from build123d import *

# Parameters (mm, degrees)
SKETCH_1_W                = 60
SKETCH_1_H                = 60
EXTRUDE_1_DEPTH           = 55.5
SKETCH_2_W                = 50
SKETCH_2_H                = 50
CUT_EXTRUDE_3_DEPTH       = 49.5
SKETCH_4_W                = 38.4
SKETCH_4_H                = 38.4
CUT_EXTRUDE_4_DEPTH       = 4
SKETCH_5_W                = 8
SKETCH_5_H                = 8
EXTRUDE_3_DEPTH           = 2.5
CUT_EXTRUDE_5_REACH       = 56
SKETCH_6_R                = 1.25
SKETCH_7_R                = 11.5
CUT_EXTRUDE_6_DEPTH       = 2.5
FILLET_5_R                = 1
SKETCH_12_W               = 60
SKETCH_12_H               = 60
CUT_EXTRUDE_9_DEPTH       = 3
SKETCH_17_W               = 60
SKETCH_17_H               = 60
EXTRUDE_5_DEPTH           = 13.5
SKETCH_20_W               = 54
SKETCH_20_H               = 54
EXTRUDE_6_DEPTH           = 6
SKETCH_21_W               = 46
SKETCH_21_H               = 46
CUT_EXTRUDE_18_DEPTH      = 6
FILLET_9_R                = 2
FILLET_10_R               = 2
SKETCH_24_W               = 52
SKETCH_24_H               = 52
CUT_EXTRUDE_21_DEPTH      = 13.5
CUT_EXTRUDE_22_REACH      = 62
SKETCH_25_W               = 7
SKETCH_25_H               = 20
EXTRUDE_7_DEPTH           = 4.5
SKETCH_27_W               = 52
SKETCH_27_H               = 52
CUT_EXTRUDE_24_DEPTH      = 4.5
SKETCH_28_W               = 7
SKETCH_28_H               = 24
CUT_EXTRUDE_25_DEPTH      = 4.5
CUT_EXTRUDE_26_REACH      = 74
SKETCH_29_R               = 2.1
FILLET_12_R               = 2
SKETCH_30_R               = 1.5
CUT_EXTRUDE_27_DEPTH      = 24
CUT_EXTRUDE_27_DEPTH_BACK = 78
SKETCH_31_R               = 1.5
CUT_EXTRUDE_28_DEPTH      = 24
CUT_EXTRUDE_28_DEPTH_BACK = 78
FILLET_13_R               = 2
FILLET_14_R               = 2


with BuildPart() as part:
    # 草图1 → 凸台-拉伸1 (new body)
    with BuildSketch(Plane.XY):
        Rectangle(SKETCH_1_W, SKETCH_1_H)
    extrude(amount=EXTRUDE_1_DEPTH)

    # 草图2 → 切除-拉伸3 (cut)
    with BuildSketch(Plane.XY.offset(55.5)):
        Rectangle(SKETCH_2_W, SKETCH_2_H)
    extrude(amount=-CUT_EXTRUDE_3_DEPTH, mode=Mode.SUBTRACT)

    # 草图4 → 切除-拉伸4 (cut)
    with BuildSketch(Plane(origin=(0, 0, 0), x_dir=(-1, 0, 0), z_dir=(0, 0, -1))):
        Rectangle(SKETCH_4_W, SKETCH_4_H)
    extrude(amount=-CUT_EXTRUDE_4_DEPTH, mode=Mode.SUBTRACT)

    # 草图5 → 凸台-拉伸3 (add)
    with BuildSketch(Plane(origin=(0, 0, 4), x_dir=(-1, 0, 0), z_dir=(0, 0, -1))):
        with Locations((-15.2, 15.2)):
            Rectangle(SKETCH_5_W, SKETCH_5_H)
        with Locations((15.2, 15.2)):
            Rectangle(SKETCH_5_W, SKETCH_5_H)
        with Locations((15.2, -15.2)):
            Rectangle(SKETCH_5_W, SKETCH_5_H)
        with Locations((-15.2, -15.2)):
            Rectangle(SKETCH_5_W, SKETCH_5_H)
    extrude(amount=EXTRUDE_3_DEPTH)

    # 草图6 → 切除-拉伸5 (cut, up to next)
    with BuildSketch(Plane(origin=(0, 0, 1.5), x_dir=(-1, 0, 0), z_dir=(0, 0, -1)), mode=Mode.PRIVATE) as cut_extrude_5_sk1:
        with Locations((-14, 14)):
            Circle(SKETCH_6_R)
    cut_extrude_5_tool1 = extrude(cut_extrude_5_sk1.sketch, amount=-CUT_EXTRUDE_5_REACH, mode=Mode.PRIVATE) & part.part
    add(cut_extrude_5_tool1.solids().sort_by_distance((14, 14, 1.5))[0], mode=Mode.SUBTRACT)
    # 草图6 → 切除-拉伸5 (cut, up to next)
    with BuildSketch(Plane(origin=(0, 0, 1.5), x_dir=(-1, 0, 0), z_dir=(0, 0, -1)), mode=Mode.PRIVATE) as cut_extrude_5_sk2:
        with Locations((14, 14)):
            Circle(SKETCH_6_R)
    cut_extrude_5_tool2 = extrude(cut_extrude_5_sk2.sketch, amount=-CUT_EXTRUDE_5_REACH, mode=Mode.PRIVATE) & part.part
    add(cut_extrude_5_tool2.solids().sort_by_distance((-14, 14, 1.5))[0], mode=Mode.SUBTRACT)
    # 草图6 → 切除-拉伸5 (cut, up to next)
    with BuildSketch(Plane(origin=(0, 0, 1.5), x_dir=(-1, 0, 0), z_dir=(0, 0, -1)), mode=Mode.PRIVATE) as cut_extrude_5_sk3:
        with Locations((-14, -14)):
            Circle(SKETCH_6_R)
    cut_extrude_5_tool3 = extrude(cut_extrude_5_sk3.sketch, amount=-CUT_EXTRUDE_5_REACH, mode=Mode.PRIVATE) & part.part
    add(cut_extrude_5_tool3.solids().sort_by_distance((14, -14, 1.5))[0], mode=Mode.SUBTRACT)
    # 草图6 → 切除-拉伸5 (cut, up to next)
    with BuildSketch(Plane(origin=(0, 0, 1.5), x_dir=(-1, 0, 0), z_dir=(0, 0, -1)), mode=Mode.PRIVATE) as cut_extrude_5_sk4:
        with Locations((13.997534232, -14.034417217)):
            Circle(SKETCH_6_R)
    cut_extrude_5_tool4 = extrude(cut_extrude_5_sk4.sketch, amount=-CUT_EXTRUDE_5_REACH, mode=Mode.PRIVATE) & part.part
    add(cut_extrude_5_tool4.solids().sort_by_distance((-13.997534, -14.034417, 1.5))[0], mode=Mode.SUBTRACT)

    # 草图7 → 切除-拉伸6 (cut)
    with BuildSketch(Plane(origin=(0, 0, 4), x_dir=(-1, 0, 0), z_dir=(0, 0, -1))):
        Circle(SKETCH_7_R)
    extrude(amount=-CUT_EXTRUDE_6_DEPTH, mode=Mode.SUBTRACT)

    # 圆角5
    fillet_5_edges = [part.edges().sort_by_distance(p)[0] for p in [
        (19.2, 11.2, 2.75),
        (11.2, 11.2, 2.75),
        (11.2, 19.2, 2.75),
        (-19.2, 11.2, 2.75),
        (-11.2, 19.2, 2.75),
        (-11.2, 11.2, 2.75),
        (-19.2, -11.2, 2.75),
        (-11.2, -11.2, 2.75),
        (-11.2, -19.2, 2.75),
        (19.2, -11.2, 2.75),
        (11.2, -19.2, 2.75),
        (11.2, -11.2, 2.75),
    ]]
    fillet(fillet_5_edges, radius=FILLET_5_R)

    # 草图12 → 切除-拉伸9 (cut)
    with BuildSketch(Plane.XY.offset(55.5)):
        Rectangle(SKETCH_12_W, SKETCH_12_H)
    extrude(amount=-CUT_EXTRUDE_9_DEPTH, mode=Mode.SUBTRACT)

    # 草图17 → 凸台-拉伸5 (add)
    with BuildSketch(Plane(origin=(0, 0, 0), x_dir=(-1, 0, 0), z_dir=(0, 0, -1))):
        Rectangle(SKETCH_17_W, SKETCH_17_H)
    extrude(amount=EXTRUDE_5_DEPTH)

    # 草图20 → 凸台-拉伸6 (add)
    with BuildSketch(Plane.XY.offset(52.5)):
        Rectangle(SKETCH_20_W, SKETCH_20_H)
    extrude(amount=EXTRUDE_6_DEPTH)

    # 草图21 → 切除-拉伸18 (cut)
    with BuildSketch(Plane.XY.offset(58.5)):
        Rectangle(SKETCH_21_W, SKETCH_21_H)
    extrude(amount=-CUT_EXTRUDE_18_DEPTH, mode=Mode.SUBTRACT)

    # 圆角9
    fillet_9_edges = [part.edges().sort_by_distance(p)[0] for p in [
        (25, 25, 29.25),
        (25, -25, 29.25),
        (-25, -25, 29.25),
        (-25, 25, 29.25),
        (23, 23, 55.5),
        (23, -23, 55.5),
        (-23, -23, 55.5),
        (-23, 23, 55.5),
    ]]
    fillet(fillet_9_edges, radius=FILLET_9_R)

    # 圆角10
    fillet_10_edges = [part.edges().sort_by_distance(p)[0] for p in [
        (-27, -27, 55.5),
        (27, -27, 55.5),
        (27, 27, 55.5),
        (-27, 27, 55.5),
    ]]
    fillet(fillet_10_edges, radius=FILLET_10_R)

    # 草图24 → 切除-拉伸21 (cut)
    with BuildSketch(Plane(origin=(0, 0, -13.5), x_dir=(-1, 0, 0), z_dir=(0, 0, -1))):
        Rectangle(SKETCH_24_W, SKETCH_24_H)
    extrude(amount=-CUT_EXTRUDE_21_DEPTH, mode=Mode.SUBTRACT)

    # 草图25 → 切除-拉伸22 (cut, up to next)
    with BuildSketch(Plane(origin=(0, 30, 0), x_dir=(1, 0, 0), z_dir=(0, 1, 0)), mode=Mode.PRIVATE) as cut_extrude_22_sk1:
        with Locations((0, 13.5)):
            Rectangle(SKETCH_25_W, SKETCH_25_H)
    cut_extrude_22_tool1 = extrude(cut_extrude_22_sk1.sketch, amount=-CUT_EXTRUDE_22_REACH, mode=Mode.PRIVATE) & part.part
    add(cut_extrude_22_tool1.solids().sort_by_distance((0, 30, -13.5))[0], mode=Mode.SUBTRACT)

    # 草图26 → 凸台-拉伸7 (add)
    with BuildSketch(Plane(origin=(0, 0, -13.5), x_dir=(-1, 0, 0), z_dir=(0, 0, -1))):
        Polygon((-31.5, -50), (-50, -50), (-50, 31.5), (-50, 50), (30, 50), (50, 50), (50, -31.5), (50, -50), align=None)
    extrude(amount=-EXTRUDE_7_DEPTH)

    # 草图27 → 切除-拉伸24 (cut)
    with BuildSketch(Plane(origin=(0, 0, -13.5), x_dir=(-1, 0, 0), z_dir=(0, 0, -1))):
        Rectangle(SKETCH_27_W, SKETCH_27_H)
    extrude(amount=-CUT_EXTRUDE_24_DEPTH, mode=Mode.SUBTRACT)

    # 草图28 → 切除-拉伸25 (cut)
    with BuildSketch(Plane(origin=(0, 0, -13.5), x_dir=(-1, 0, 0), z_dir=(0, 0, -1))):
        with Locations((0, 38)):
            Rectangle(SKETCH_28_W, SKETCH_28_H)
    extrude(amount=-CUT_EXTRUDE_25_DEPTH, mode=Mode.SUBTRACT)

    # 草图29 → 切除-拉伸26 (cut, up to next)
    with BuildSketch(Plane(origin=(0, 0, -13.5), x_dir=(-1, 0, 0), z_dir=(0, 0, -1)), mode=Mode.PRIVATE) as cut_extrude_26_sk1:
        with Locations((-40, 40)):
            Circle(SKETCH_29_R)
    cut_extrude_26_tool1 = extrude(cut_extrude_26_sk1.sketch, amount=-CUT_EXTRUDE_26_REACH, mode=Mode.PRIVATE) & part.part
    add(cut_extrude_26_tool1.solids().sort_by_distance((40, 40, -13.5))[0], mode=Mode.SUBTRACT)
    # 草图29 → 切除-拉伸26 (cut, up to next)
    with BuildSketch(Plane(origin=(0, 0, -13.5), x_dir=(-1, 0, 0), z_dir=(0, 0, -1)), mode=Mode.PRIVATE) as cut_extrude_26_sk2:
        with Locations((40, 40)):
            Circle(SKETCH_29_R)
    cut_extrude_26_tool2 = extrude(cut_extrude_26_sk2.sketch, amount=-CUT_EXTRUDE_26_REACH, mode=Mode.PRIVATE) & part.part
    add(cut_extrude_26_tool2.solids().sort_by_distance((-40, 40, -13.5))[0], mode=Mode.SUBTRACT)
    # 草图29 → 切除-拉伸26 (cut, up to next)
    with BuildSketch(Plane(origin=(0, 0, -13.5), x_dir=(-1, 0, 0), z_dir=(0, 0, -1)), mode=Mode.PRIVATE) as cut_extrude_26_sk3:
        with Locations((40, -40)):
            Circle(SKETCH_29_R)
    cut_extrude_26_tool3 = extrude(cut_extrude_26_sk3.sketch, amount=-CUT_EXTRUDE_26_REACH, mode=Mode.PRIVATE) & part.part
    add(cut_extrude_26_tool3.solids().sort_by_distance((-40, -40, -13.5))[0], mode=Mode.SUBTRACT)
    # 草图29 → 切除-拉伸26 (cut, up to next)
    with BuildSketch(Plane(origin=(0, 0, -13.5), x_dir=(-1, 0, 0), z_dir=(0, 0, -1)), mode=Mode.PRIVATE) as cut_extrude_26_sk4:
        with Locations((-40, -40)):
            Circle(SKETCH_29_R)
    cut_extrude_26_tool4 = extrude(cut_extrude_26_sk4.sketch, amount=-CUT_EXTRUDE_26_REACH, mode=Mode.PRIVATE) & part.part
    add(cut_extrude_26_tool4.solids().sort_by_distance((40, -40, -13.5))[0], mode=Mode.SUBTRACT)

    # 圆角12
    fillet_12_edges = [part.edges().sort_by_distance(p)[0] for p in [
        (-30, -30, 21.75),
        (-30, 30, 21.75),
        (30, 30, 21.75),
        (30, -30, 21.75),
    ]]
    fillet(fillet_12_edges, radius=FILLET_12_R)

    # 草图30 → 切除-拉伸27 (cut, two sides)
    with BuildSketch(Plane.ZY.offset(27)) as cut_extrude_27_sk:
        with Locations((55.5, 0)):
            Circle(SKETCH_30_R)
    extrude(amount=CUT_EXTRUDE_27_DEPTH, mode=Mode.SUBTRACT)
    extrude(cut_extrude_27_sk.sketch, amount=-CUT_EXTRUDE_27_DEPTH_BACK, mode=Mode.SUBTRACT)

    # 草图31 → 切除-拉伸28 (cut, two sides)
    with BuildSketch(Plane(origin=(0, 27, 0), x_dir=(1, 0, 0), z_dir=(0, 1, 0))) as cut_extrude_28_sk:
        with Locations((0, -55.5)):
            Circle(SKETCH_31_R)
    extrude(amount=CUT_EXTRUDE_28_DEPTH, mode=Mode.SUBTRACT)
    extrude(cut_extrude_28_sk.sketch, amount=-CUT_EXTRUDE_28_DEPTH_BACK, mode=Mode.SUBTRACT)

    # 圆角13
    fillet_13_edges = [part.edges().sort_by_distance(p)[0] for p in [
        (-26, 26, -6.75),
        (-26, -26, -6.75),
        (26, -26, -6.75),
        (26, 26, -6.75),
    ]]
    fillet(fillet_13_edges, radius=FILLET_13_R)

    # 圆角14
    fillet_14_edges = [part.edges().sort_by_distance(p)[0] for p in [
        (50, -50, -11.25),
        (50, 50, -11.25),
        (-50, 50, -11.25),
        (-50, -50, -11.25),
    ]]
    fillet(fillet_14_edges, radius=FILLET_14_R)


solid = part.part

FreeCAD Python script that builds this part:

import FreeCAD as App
import Part
import Sketcher
from FreeCAD import Vector
Q = App.Units.Quantity


def edges_at(feature, points):
    """Names of the edges that pass closest to the given points."""
    edges = feature.Shape.Edges
    near = lambda p: min(range(len(edges)), key=lambda i: edges[i].distToShape(Part.Vertex(*p))[0])
    return sorted({f"Edge{near(p) + 1}" for p in points})

doc = App.newDocument("Part")
body = doc.addObject("PartDesign::Body", "Body")

# Sketch on XY plane
sketch1 = body.newObject("Sketcher::SketchObject", "Sketch")
sketch1.AttachmentSupport = (doc.getObject("XY_Plane"), [""])
sketch1.MapMode = "FlatFace"
sketch1.addGeometry([
    Part.LineSegment(Vector(-30, 30, 0), Vector(-30, -30, 0)),
    Part.LineSegment(Vector(-30, -30, 0), Vector(30, -30, 0)),
    Part.LineSegment(Vector(30, -30, 0), Vector(30, 30, 0)),
    Part.LineSegment(Vector(30, 30, 0), Vector(-30, 30, 0)),
], False)
sketch1.addConstraint([
    Sketcher.Constraint("Coincident", 0, 2, 1, 1),
    Sketcher.Constraint("Coincident", 1, 2, 2, 1),
    Sketcher.Constraint("Coincident", 2, 2, 3, 1),
    Sketcher.Constraint("Coincident", 3, 2, 0, 1),
    Sketcher.Constraint("Vertical", 0),
    Sketcher.Constraint("Horizontal", 1),
    Sketcher.Constraint("Vertical", 2),
    Sketcher.Constraint("Horizontal", 3),
    Sketcher.Constraint("Symmetric", 0, 2, 2, 2, -1, 1),
    Sketcher.Constraint("Equal", 3, 0),
    Sketcher.Constraint("DistanceX", 1, 1, 1, 2, Q("60 mm")),
])
pad1 = body.newObject("PartDesign::Pad", "Pad")
pad1.Profile = sketch1
pad1.Length = 55.5

# Sketch on XY plane
sketch2 = body.newObject("Sketcher::SketchObject", "Sketch001")
sketch2.AttachmentSupport = (doc.getObject("XY_Plane"), [""])
sketch2.MapMode = "FlatFace"
sketch2.AttachmentOffset = App.Placement(Vector(0, 0, 55.5), App.Rotation())
sketch2.addGeometry([
    Part.LineSegment(Vector(-25, 25, 0), Vector(-25, -25, 0)),
    Part.LineSegment(Vector(-25, -25, 0), Vector(25, -25, 0)),
    Part.LineSegment(Vector(25, -25, 0), Vector(25, 25, 0)),
    Part.LineSegment(Vector(25, 25, 0), Vector(-25, 25, 0)),
], False)
sketch2.addConstraint([
    Sketcher.Constraint("Coincident", 0, 2, 1, 1),
    Sketcher.Constraint("Coincident", 1, 2, 2, 1),
    Sketcher.Constraint("Coincident", 2, 2, 3, 1),
    Sketcher.Constraint("Coincident", 3, 2, 0, 1),
    Sketcher.Constraint("Vertical", 0),
    Sketcher.Constraint("Horizontal", 1),
    Sketcher.Constraint("Vertical", 2),
    Sketcher.Constraint("Horizontal", 3),
    Sketcher.Constraint("Symmetric", 0, 2, 2, 2, -1, 1),
    Sketcher.Constraint("Equal", 3, 0),
    Sketcher.Constraint("DistanceX", 1, 1, 1, 2, Q("50 mm")),
])
pocket1 = body.newObject("PartDesign::Pocket", "Pocket")
pocket1.Profile = sketch2
pocket1.Length = 49.5

# Sketch on XY plane
sketch3 = body.newObject("Sketcher::SketchObject", "Sketch002")
sketch3.AttachmentSupport = (doc.getObject("XY_Plane"), [""])
sketch3.MapMode = "FlatFace"
sketch3.addGeometry([
    Part.LineSegment(Vector(19, 19, 0), Vector(19, -19, 0)),
    Part.LineSegment(Vector(19, -19, 0), Vector(-19, -19, 0)),
    Part.LineSegment(Vector(-19, -19, 0), Vector(-19, 19, 0)),
    Part.LineSegment(Vector(-19, 19, 0), Vector(19, 19, 0)),
], False)
sketch3.addConstraint([
    Sketcher.Constraint("Coincident", 0, 2, 1, 1),
    Sketcher.Constraint("Coincident", 1, 2, 2, 1),
    Sketcher.Constraint("Coincident", 2, 2, 3, 1),
    Sketcher.Constraint("Coincident", 3, 2, 0, 1),
    Sketcher.Constraint("Vertical", 0),
    Sketcher.Constraint("Horizontal", 1),
    Sketcher.Constraint("Vertical", 2),
    Sketcher.Constraint("Horizontal", 3),
    Sketcher.Constraint("Symmetric", 0, 2, 2, 2, -1, 1),
    Sketcher.Constraint("Equal", 3, 0),
    Sketcher.Constraint("DistanceX", 1, 2, 1, 1, Q("38.4 mm")),
])
pocket2 = body.newObject("PartDesign::Pocket", "Pocket001")
pocket2.Profile = sketch3
pocket2.Length = 4
pocket2.Reversed = True

# Sketch on XY plane
sketch4 = body.newObject("Sketcher::SketchObject", "Sketch003")
sketch4.AttachmentSupport = (doc.getObject("XY_Plane"), [""])
sketch4.MapMode = "FlatFace"
sketch4.AttachmentOffset = App.Placement(Vector(0, 0, 4), App.Rotation())
sketch4.addGeometry([
    Part.LineSegment(Vector(19, 19, 0), Vector(19, 11, 0)),  # 0
    Part.LineSegment(Vector(19, 11, 0), Vector(11, 11, 0)),  # 1
    Part.LineSegment(Vector(11, 11, 0), Vector(11, 19, 0)),  # 2
    Part.LineSegment(Vector(11, 19, 0), Vector(19, 19, 0)),  # 3
    Part.LineSegment(Vector(-11, 19, 0), Vector(-11, 11, 0)),  # 4
    Part.LineSegment(Vector(-11, 11, 0), Vector(-19, 11, 0)),  # 5
    Part.LineSegment(Vector(-19, 11, 0), Vector(-19, 19, 0)),  # 6
    Part.LineSegment(Vector(-19, 19, 0), Vector(-11, 19, 0)),  # 7
    Part.LineSegment(Vector(-11, -11, 0), Vector(-11, -19, 0)),  # 8
    Part.LineSegment(Vector(-11, -19, 0), Vector(-19, -19, 0)),  # 9
    Part.LineSegment(Vector(-19, -19, 0), Vector(-19, -11, 0)),  # 10
    Part.LineSegment(Vector(-19, -11, 0), Vector(-11, -11, 0)),  # 11
    Part.LineSegment(Vector(19, -11, 0), Vector(19, -19, 0)),  # 12
    Part.LineSegment(Vector(19, -19, 0), Vector(11, -19, 0)),  # 13
    Part.LineSegment(Vector(11, -19, 0), Vector(11, -11, 0)),  # 14
    Part.LineSegment(Vector(11, -11, 0), Vector(19, -11, 0)),  # 15
], False)
sketch4.addConstraint([
    Sketcher.Constraint("Coincident", 0, 2, 1, 1),
    Sketcher.Constraint("Coincident", 1, 2, 2, 1),
    Sketcher.Constraint("Coincident", 2, 2, 3, 1),
    Sketcher.Constraint("Coincident", 3, 2, 0, 1),
    Sketcher.Constraint("Coincident", 4, 2, 5, 1),
    Sketcher.Constraint("Coincident", 5, 2, 6, 1),
    Sketcher.Constraint("Coincident", 6, 2, 7, 1),
    Sketcher.Constraint("Coincident", 7, 2, 4, 1),
    Sketcher.Constraint("Coincident", 8, 2, 9, 1),
    Sketcher.Constraint("Coincident", 9, 2, 10, 1),
    Sketcher.Constraint("Coincident", 10, 2, 11, 1),
    Sketcher.Constraint("Coincident", 11, 2, 8, 1),
    Sketcher.Constraint("Coincident", 12, 2, 13, 1),
    Sketcher.Constraint("Coincident", 13, 2, 14, 1),
    Sketcher.Constraint("Coincident", 14, 2, 15, 1),
    Sketcher.Constraint("Coincident", 15, 2, 12, 1),
    Sketcher.Constraint("Vertical", 0),
    Sketcher.Constraint("Horizontal", 1),
    Sketcher.Constraint("Vertical", 2),
    Sketcher.Constraint("Horizontal", 3),
    Sketcher.Constraint("Vertical", 4),
    Sketcher.Constraint("Horizontal", 5),
    Sketcher.Constraint("Vertical", 6),
    Sketcher.Constraint("Horizontal", 7),
    Sketcher.Constraint("Vertical", 8),
    Sketcher.Constraint("Horizontal", 9),
    Sketcher.Constraint("Vertical", 10),
    Sketcher.Constraint("Horizontal", 11),
    Sketcher.Constraint("Vertical", 12),
    Sketcher.Constraint("Horizontal", 13),
    Sketcher.Constraint("Vertical", 14),
    Sketcher.Constraint("Horizontal", 15),
    Sketcher.Constraint("Symmetric", 2, 2, 8, 2, -1, 1),
    Sketcher.Constraint("Symmetric", 0, 2, 10, 2, -1, 1),
    Sketcher.Constraint("Symmetric", 6, 2, 12, 2, -1, 1),
    Sketcher.Constraint("Symmetric", 4, 2, 14, 2, -1, 1),
    Sketcher.Constraint("Symmetric", 1, 2, 4, 2, -2),
    Sketcher.Constraint("Symmetric", 3, 2, 6, 2, -2),
    Sketcher.Constraint("Equal", 15, 0),
    Sketcher.Constraint("DistanceX", 1, 2, 1, 1, Q("8 mm")),
    Sketcher.Constraint("DistanceX", -1, 1, 0, 2, Q("19.2 mm")),
    Sketcher.Constraint("DistanceY", -1, 1, 0, 2, Q("11.2 mm")),
])
pad2 = body.newObject("PartDesign::Pad", "Pad001")
pad2.Profile = sketch4
pad2.Length = 2.5
pad2.Reversed = True

# Sketch on XY plane
sketch5 = body.newObject("Sketcher::SketchObject", "Sketch004")
sketch5.AttachmentSupport = (doc.getObject("XY_Plane"), [""])
sketch5.MapMode = "FlatFace"
sketch5.AttachmentOffset = App.Placement(Vector(0, 0, 1.5), App.Rotation())
sketch5.addGeometry(Part.Circle(Vector(14, 14, 0), Vector(0, 0, 1), 1.2), False)
sketch5.addConstraint([
    Sketcher.Constraint("Diameter", 0, Q("2.5 mm")),
    Sketcher.Constraint("DistanceX", -1, 1, 0, 3, Q("14 mm")),
    Sketcher.Constraint("DistanceY", -1, 1, 0, 3, Q("14 mm")),
])
pocket3 = body.newObject("PartDesign::Pocket", "Pocket002")
pocket3.Profile = sketch5
pocket3.Type = "UpToFirst"
pocket3.Reversed = True

# Sketch on XY plane
sketch6 = body.newObject("Sketcher::SketchObject", "Sketch005")
sketch6.AttachmentSupport = (doc.getObject("XY_Plane"), [""])
sketch6.MapMode = "FlatFace"
sketch6.AttachmentOffset = App.Placement(Vector(0, 0, 1.5), App.Rotation())
sketch6.addGeometry(Part.Circle(Vector(-14, 14, 0), Vector(0, 0, 1), 1.2), False)
sketch6.addConstraint([
    Sketcher.Constraint("Diameter", 0, Q("2.5 mm")),
    Sketcher.Constraint("DistanceX", 0, 3, -1, 1, Q("14 mm")),
    Sketcher.Constraint("DistanceY", -1, 1, 0, 3, Q("14 mm")),
])
pocket4 = body.newObject("PartDesign::Pocket", "Pocket003")
pocket4.Profile = sketch6
pocket4.Type = "UpToFirst"
pocket4.Reversed = True

# Sketch on XY plane
sketch7 = body.newObject("Sketcher::SketchObject", "Sketch006")
sketch7.AttachmentSupport = (doc.getObject("XY_Plane"), [""])
sketch7.MapMode = "FlatFace"
sketch7.AttachmentOffset = App.Placement(Vector(0, 0, 1.5), App.Rotation())
sketch7.addGeometry(Part.Circle(Vector(14, -14, 0), Vector(0, 0, 1), 1.2), False)
sketch7.addConstraint([
    Sketcher.Constraint("Diameter", 0, Q("2.5 mm")),
    Sketcher.Constraint("DistanceX", -1, 1, 0, 3, Q("14 mm")),
    Sketcher.Constraint("DistanceY", 0, 3, -1, 1, Q("14 mm")),
])
pocket5 = body.newObject("PartDesign::Pocket", "Pocket004")
pocket5.Profile = sketch7
pocket5.Type = "UpToFirst"
pocket5.Reversed = True

# Sketch on XY plane
sketch8 = body.newObject("Sketcher::SketchObject", "Sketch007")
sketch8.AttachmentSupport = (doc.getObject("XY_Plane"), [""])
sketch8.MapMode = "FlatFace"
sketch8.AttachmentOffset = App.Placement(Vector(0, 0, 1.5), App.Rotation())
sketch8.addGeometry(Part.Circle(Vector(-14, -14, 0), Vector(0, 0, 1), 1.2), False)
sketch8.addConstraint([
    Sketcher.Constraint("Diameter", 0, Q("2.5 mm")),
    Sketcher.Constraint("DistanceX", 0, 3, -1, 1, Q("13.997534 mm")),
    Sketcher.Constraint("DistanceY", 0, 3, -1, 1, Q("14.034417 mm")),
])
pocket6 = body.newObject("PartDesign::Pocket", "Pocket005")
pocket6.Profile = sketch8
pocket6.Type = "UpToFirst"
pocket6.Reversed = True

# Sketch on XY plane
sketch9 = body.newObject("Sketcher::SketchObject", "Sketch008")
sketch9.AttachmentSupport = (doc.getObject("XY_Plane"), [""])
sketch9.MapMode = "FlatFace"
sketch9.AttachmentOffset = App.Placement(Vector(0, 0, 4), App.Rotation())
sketch9.addGeometry(Part.Circle(Vector(0, 0, 0), Vector(0, 0, 1), 12), False)
sketch9.addConstraint([
    Sketcher.Constraint("Coincident", 0, 3, -1, 1),
    Sketcher.Constraint("Diameter", 0, Q("23 mm")),
])
pocket7 = body.newObject("PartDesign::Pocket", "Pocket006")
pocket7.Profile = sketch9
pocket7.Length = 2.5
pocket7.Reversed = True
doc.recompute()

fillet = body.newObject("PartDesign::Fillet", "Fillet")
fillet.Base = (pocket7, edges_at(pocket7, [
    (19.2, 11.2, 2.75),
    (11.2, 11.2, 2.75),
    (11.2, 19.2, 2.75),
    (-19.2, 11.2, 2.75),
    (-11.2, 19.2, 2.75),
    (-11.2, 11.2, 2.75),
    (-19.2, -11.2, 2.75),
    (-11.2, -11.2, 2.75),
    (-11.2, -19.2, 2.75),
    (19.2, -11.2, 2.75),
    (11.2, -19.2, 2.75),
    (11.2, -11.2, 2.75),
]))
fillet.Radius = 1

# Sketch on XY plane
sketch10 = body.newObject("Sketcher::SketchObject", "Sketch009")
sketch10.AttachmentSupport = (doc.getObject("XY_Plane"), [""])
sketch10.MapMode = "FlatFace"
sketch10.AttachmentOffset = App.Placement(Vector(0, 0, 55.5), App.Rotation())
sketch10.addGeometry([
    Part.LineSegment(Vector(-30, 30, 0), Vector(-30, -30, 0)),
    Part.LineSegment(Vector(-30, -30, 0), Vector(30, -30, 0)),
    Part.LineSegment(Vector(30, -30, 0), Vector(30, 30, 0)),
    Part.LineSegment(Vector(30, 30, 0), Vector(-30, 30, 0)),
], False)
sketch10.addConstraint([
    Sketcher.Constraint("Coincident", 0, 2, 1, 1),
    Sketcher.Constraint("Coincident", 1, 2, 2, 1),
    Sketcher.Constraint("Coincident", 2, 2, 3, 1),
    Sketcher.Constraint("Coincident", 3, 2, 0, 1),
    Sketcher.Constraint("Vertical", 0),
    Sketcher.Constraint("Horizontal", 1),
    Sketcher.Constraint("Vertical", 2),
    Sketcher.Constraint("Horizontal", 3),
    Sketcher.Constraint("Symmetric", 0, 2, 2, 2, -1, 1),
    Sketcher.Constraint("Equal", 3, 0),
    Sketcher.Constraint("DistanceX", 1, 1, 1, 2, Q("60 mm")),
])
pocket8 = body.newObject("PartDesign::Pocket", "Pocket007")
pocket8.Profile = sketch10
pocket8.Length = 3

# Sketch on XY plane
sketch11 = body.newObject("Sketcher::SketchObject", "Sketch010")
sketch11.AttachmentSupport = (doc.getObject("XY_Plane"), [""])
sketch11.MapMode = "FlatFace"
sketch11.addGeometry([
    Part.LineSegment(Vector(30, 30, 0), Vector(30, -30, 0)),
    Part.LineSegment(Vector(30, -30, 0), Vector(-30, -30, 0)),
    Part.LineSegment(Vector(-30, -30, 0), Vector(-30, 30, 0)),
    Part.LineSegment(Vector(-30, 30, 0), Vector(30, 30, 0)),
], False)
sketch11.addConstraint([
    Sketcher.Constraint("Coincident", 0, 2, 1, 1),
    Sketcher.Constraint("Coincident", 1, 2, 2, 1),
    Sketcher.Constraint("Coincident", 2, 2, 3, 1),
    Sketcher.Constraint("Coincident", 3, 2, 0, 1),
    Sketcher.Constraint("Vertical", 0),
    Sketcher.Constraint("Horizontal", 1),
    Sketcher.Constraint("Vertical", 2),
    Sketcher.Constraint("Horizontal", 3),
    Sketcher.Constraint("Symmetric", 0, 2, 2, 2, -1, 1),
    Sketcher.Constraint("Equal", 3, 0),
    Sketcher.Constraint("DistanceX", 1, 2, 1, 1, Q("60 mm")),
])
pad3 = body.newObject("PartDesign::Pad", "Pad002")
pad3.Profile = sketch11
pad3.Length = 13.5
pad3.Reversed = True

# Sketch on XY plane
sketch12 = body.newObject("Sketcher::SketchObject", "Sketch011")
sketch12.AttachmentSupport = (doc.getObject("XY_Plane"), [""])
sketch12.MapMode = "FlatFace"
sketch12.AttachmentOffset = App.Placement(Vector(0, 0, 52.5), App.Rotation())
sketch12.addGeometry([
    Part.LineSegment(Vector(-27, 27, 0), Vector(-27, -27, 0)),
    Part.LineSegment(Vector(-27, -27, 0), Vector(27, -27, 0)),
    Part.LineSegment(Vector(27, -27, 0), Vector(27, 27, 0)),
    Part.LineSegment(Vector(27, 27, 0), Vector(-27, 27, 0)),
], False)
sketch12.addConstraint([
    Sketcher.Constraint("Coincident", 0, 2, 1, 1),
    Sketcher.Constraint("Coincident", 1, 2, 2, 1),
    Sketcher.Constraint("Coincident", 2, 2, 3, 1),
    Sketcher.Constraint("Coincident", 3, 2, 0, 1),
    Sketcher.Constraint("Vertical", 0),
    Sketcher.Constraint("Horizontal", 1),
    Sketcher.Constraint("Vertical", 2),
    Sketcher.Constraint("Horizontal", 3),
    Sketcher.Constraint("Symmetric", 0, 2, 2, 2, -1, 1),
    Sketcher.Constraint("Equal", 3, 0),
    Sketcher.Constraint("DistanceX", 1, 1, 1, 2, Q("54 mm")),
])
pad4 = body.newObject("PartDesign::Pad", "Pad003")
pad4.Profile = sketch12
pad4.Length = 6

# Sketch on XY plane
sketch13 = body.newObject("Sketcher::SketchObject", "Sketch012")
sketch13.AttachmentSupport = (doc.getObject("XY_Plane"), [""])
sketch13.MapMode = "FlatFace"
sketch13.AttachmentOffset = App.Placement(Vector(0, 0, 58.5), App.Rotation())
sketch13.addGeometry([
    Part.LineSegment(Vector(-23, 23, 0), Vector(-23, -23, 0)),
    Part.LineSegment(Vector(-23, -23, 0), Vector(23, -23, 0)),
    Part.LineSegment(Vector(23, -23, 0), Vector(23, 23, 0)),
    Part.LineSegment(Vector(23, 23, 0), Vector(-23, 23, 0)),
], False)
sketch13.addConstraint([
    Sketcher.Constraint("Coincident", 0, 2, 1, 1),
    Sketcher.Constraint("Coincident", 1, 2, 2, 1),
    Sketcher.Constraint("Coincident", 2, 2, 3, 1),
    Sketcher.Constraint("Coincident", 3, 2, 0, 1),
    Sketcher.Constraint("Vertical", 0),
    Sketcher.Constraint("Horizontal", 1),
    Sketcher.Constraint("Vertical", 2),
    Sketcher.Constraint("Horizontal", 3),
    Sketcher.Constraint("Symmetric", 0, 2, 2, 2, -1, 1),
    Sketcher.Constraint("Equal", 3, 0),
    Sketcher.Constraint("DistanceX", 1, 1, 1, 2, Q("46 mm")),
])
pocket9 = body.newObject("PartDesign::Pocket", "Pocket008")
pocket9.Profile = sketch13
pocket9.Length = 6
doc.recompute()

fillet2 = body.newObject("PartDesign::Fillet", "Fillet001")
fillet2.Base = (pocket9, edges_at(pocket9, [
    (25, 25, 29.25),
    (25, -25, 29.25),
    (-25, -25, 29.25),
    (-25, 25, 29.25),
    (23, 23, 55.5),
    (23, -23, 55.5),
    (-23, -23, 55.5),
    (-23, 23, 55.5),
]))
fillet2.Radius = 2
doc.recompute()

fillet3 = body.newObject("PartDesign::Fillet", "Fillet002")
fillet3.Base = (fillet2, edges_at(fillet2, [
    (-27, -27, 55.5),
    (27, -27, 55.5),
    (27, 27, 55.5),
    (-27, 27, 55.5),
]))
fillet3.Radius = 2

# Sketch on XY plane
sketch14 = body.newObject("Sketcher::SketchObject", "Sketch013")
sketch14.AttachmentSupport = (doc.getObject("XY_Plane"), [""])
sketch14.MapMode = "FlatFace"
sketch14.AttachmentOffset = App.Placement(Vector(0, 0, -13.5), App.Rotation())
sketch14.addGeometry([
    Part.LineSegment(Vector(26, 26, 0), Vector(26, -26, 0)),
    Part.LineSegment(Vector(26, -26, 0), Vector(-26, -26, 0)),
    Part.LineSegment(Vector(-26, -26, 0), Vector(-26, 26, 0)),
    Part.LineSegment(Vector(-26, 26, 0), Vector(26, 26, 0)),
], False)
sketch14.addConstraint([
    Sketcher.Constraint("Coincident", 0, 2, 1, 1),
    Sketcher.Constraint("Coincident", 1, 2, 2, 1),
    Sketcher.Constraint("Coincident", 2, 2, 3, 1),
    Sketcher.Constraint("Coincident", 3, 2, 0, 1),
    Sketcher.Constraint("Vertical", 0),
    Sketcher.Constraint("Horizontal", 1),
    Sketcher.Constraint("Vertical", 2),
    Sketcher.Constraint("Horizontal", 3),
    Sketcher.Constraint("Symmetric", 0, 2, 2, 2, -1, 1),
    Sketcher.Constraint("Equal", 3, 0),
    Sketcher.Constraint("DistanceX", 1, 2, 1, 1, Q("52 mm")),
])
pocket10 = body.newObject("PartDesign::Pocket", "Pocket009")
pocket10.Profile = sketch14
pocket10.Length = 13.5
pocket10.Reversed = True

# Sketch on XZ plane
sketch15 = body.newObject("Sketcher::SketchObject", "Sketch014")
sketch15.AttachmentSupport = (doc.getObject("XZ_Plane"), [""])
sketch15.MapMode = "FlatFace"
sketch15.AttachmentOffset = App.Placement(Vector(0, 0, -30), App.Rotation())
sketch15.addGeometry([
    Part.LineSegment(Vector(-4, -24, 0), Vector(-4, -4, 0)),
    Part.LineSegment(Vector(-4, -4, 0), Vector(4, -4, 0)),
    Part.LineSegment(Vector(4, -4, 0), Vector(4, -24, 0)),
    Part.LineSegment(Vector(4, -24, 0), Vector(-4, -24, 0)),
], False)
sketch15.addConstraint([
    Sketcher.Constraint("Coincident", 0, 2, 1, 1),
    Sketcher.Constraint("Coincident", 1, 2, 2, 1),
    Sketcher.Constraint("Coincident", 2, 2, 3, 1),
    Sketcher.Constraint("Coincident", 3, 2, 0, 1),
    Sketcher.Constraint("Vertical", 0),
    Sketcher.Constraint("Horizontal", 1),
    Sketcher.Constraint("Vertical", 2),
    Sketcher.Constraint("Horizontal", 3),
    Sketcher.Constraint("DistanceX", 1, 1, 1, 2, Q("7 mm")),
    Sketcher.Constraint("DistanceY", 0, 1, 0, 2, Q("20 mm")),
    Sketcher.Constraint("DistanceX", 0, 2, -1, 1, Q("3.5 mm")),
    Sketcher.Constraint("DistanceY", 0, 2, -1, 1, Q("3.5 mm")),
])
pocket11 = body.newObject("PartDesign::Pocket", "Pocket010")
pocket11.Profile = sketch15
pocket11.Type = "UpToFirst"
pocket11.Reversed = True

# Sketch on XY plane
sketch16 = body.newObject("Sketcher::SketchObject", "Sketch015")
sketch16.AttachmentSupport = (doc.getObject("XY_Plane"), [""])
sketch16.MapMode = "FlatFace"
sketch16.AttachmentOffset = App.Placement(Vector(0, 0, -13.5), App.Rotation())
sketch16.addGeometry([
    Part.LineSegment(Vector(50, -50, 0), Vector(-50, -50, 0)),
    Part.LineSegment(Vector(-50, -50, 0), Vector(-50, 50, 0)),
    Part.LineSegment(Vector(-50, 50, 0), Vector(50, 50, 0)),
    Part.LineSegment(Vector(50, 50, 0), Vector(50, -50, 0)),
], False)
sketch16.addConstraint([
    Sketcher.Constraint("Coincident", 0, 2, 1, 1),
    Sketcher.Constraint("Coincident", 1, 2, 2, 1),
    Sketcher.Constraint("Coincident", 2, 2, 3, 1),
    Sketcher.Constraint("Coincident", 3, 2, 0, 1),
    Sketcher.Constraint("Horizontal", 0),
    Sketcher.Constraint("Vertical", 1),
    Sketcher.Constraint("Horizontal", 2),
    Sketcher.Constraint("Vertical", 3),
    Sketcher.Constraint("Symmetric", 0, 2, 2, 2, -1, 1),
    Sketcher.Constraint("Equal", 2, 1),
    Sketcher.Constraint("DistanceX", 0, 2, 0, 1, Q("100 mm")),
])
pad5 = body.newObject("PartDesign::Pad", "Pad004")
pad5.Profile = sketch16
pad5.Length = 4.5

# Sketch on XY plane
sketch17 = body.newObject("Sketcher::SketchObject", "Sketch016")
sketch17.AttachmentSupport = (doc.getObject("XY_Plane"), [""])
sketch17.MapMode = "FlatFace"
sketch17.AttachmentOffset = App.Placement(Vector(0, 0, -13.5), App.Rotation())
sketch17.addGeometry([
    Part.LineSegment(Vector(26, 26, 0), Vector(26, -26, 0)),
    Part.LineSegment(Vector(26, -26, 0), Vector(-26, -26, 0)),
    Part.LineSegment(Vector(-26, -26, 0), Vector(-26, 26, 0)),
    Part.LineSegment(Vector(-26, 26, 0), Vector(26, 26, 0)),
], False)
sketch17.addConstraint([
    Sketcher.Constraint("Coincident", 0, 2, 1, 1),
    Sketcher.Constraint("Coincident", 1, 2, 2, 1),
    Sketcher.Constraint("Coincident", 2, 2, 3, 1),
    Sketcher.Constraint("Coincident", 3, 2, 0, 1),
    Sketcher.Constraint("Vertical", 0),
    Sketcher.Constraint("Horizontal", 1),
    Sketcher.Constraint("Vertical", 2),
    Sketcher.Constraint("Horizontal", 3),
    Sketcher.Constraint("Symmetric", 0, 2, 2, 2, -1, 1),
    Sketcher.Constraint("Equal", 3, 0),
    Sketcher.Constraint("DistanceX", 1, 2, 1, 1, Q("52 mm")),
])
pocket12 = body.newObject("PartDesign::Pocket", "Pocket011")
pocket12.Profile = sketch17
pocket12.Length = 4.5
pocket12.Reversed = True

# Sketch on XY plane
sketch18 = body.newObject("Sketcher::SketchObject", "Sketch017")
sketch18.AttachmentSupport = (doc.getObject("XY_Plane"), [""])
sketch18.MapMode = "FlatFace"
sketch18.AttachmentOffset = App.Placement(Vector(0, 0, -13.5), App.Rotation())
sketch18.addGeometry([
    Part.LineSegment(Vector(4, 50, 0), Vector(4, 26, 0)),
    Part.LineSegment(Vector(4, 26, 0), Vector(-4, 26, 0)),
    Part.LineSegment(Vector(-4, 26, 0), Vector(-4, 50, 0)),
    Part.LineSegment(Vector(-4, 50, 0), Vector(4, 50, 0)),
], False)
sketch18.addConstraint([
    Sketcher.Constraint("Coincident", 0, 2, 1, 1),
    Sketcher.Constraint("Coincident", 1, 2, 2, 1),
    Sketcher.Constraint("Coincident", 2, 2, 3, 1),
    Sketcher.Constraint("Coincident", 3, 2, 0, 1),
    Sketcher.Constraint("Vertical", 0),
    Sketcher.Constraint("Horizontal", 1),
    Sketcher.Constraint("Vertical", 2),
    Sketcher.Constraint("Horizontal", 3),
    Sketcher.Constraint("DistanceX", 1, 2, 1, 1, Q("7 mm")),
    Sketcher.Constraint("DistanceY", 0, 2, 0, 1, Q("24 mm")),
    Sketcher.Constraint("DistanceY", -1, 1, 0, 2, Q("26 mm")),
    Sketcher.Constraint("DistanceX", -1, 1, 0, 2, Q("3.5 mm")),
])
pocket13 = body.newObject("PartDesign::Pocket", "Pocket012")
pocket13.Profile = sketch18
pocket13.Length = 4.5
pocket13.Reversed = True

# Sketch on XY plane
sketch19 = body.newObject("Sketcher::SketchObject", "Sketch018")
sketch19.AttachmentSupport = (doc.getObject("XY_Plane"), [""])
sketch19.MapMode = "FlatFace"
sketch19.AttachmentOffset = App.Placement(Vector(0, 0, -13.5), App.Rotation())
sketch19.addGeometry(Part.Circle(Vector(40, 40, 0), Vector(0, 0, 1), 2.1), False)
sketch19.addConstraint([
    Sketcher.Constraint("Diameter", 0, Q("4.2 mm")),
    Sketcher.Constraint("DistanceX", -1, 1, 0, 3, Q("40 mm")),
    Sketcher.Constraint("DistanceY", -1, 1, 0, 3, Q("40 mm")),
])
pocket14 = body.newObject("PartDesign::Pocket", "Pocket013")
pocket14.Profile = sketch19
pocket14.Type = "UpToFirst"
pocket14.Reversed = True

# Sketch on XY plane
sketch20 = body.newObject("Sketcher::SketchObject", "Sketch019")
sketch20.AttachmentSupport = (doc.getObject("XY_Plane"), [""])
sketch20.MapMode = "FlatFace"
sketch20.AttachmentOffset = App.Placement(Vector(0, 0, -13.5), App.Rotation())
sketch20.addGeometry(Part.Circle(Vector(-40, 40, 0), Vector(0, 0, 1), 2.1), False)
sketch20.addConstraint([
    Sketcher.Constraint("Diameter", 0, Q("4.2 mm")),
    Sketcher.Constraint("DistanceX", 0, 3, -1, 1, Q("40 mm")),
    Sketcher.Constraint("DistanceY", -1, 1, 0, 3, Q("40 mm")),
])
pocket15 = body.newObject("PartDesign::Pocket", "Pocket014")
pocket15.Profile = sketch20
pocket15.Type = "UpToFirst"
pocket15.Reversed = True

# Sketch on XY plane
sketch21 = body.newObject("Sketcher::SketchObject", "Sketch020")
sketch21.AttachmentSupport = (doc.getObject("XY_Plane"), [""])
sketch21.MapMode = "FlatFace"
sketch21.AttachmentOffset = App.Placement(Vector(0, 0, -13.5), App.Rotation())
sketch21.addGeometry(Part.Circle(Vector(-40, -40, 0), Vector(0, 0, 1), 2.1), False)
sketch21.addConstraint([
    Sketcher.Constraint("Diameter", 0, Q("4.2 mm")),
    Sketcher.Constraint("DistanceX", 0, 3, -1, 1, Q("40 mm")),
    Sketcher.Constraint("DistanceY", 0, 3, -1, 1, Q("40 mm")),
])
pocket16 = body.newObject("PartDesign::Pocket", "Pocket015")
pocket16.Profile = sketch21
pocket16.Type = "UpToFirst"
pocket16.Reversed = True

# Sketch on XY plane
sketch22 = body.newObject("Sketcher::SketchObject", "Sketch021")
sketch22.AttachmentSupport = (doc.getObject("XY_Plane"), [""])
sketch22.MapMode = "FlatFace"
sketch22.AttachmentOffset = App.Placement(Vector(0, 0, -13.5), App.Rotation())
sketch22.addGeometry(Part.Circle(Vector(40, -40, 0), Vector(0, 0, 1), 2.1), False)
sketch22.addConstraint([
    Sketcher.Constraint("Diameter", 0, Q("4.2 mm")),
    Sketcher.Constraint("DistanceX", -1, 1, 0, 3, Q("40 mm")),
    Sketcher.Constraint("DistanceY", 0, 3, -1, 1, Q("40 mm")),
])
pocket17 = body.newObject("PartDesign::Pocket", "Pocket016")
pocket17.Profile = sketch22
pocket17.Type = "UpToFirst"
pocket17.Reversed = True
doc.recompute()

fillet4 = body.newObject("PartDesign::Fillet", "Fillet003")
fillet4.Base = (pocket17, edges_at(pocket17, [
    (-30, -30, 21.75),
    (-30, 30, 21.75),
    (30, 30, 21.75),
    (30, -30, 21.75),
]))
fillet4.Radius = 2

# Sketch on YZ plane
sketch23 = body.newObject("Sketcher::SketchObject", "Sketch022")
sketch23.AttachmentSupport = (doc.getObject("YZ_Plane"), [""])
sketch23.MapMode = "FlatFace"
sketch23.AttachmentOffset = App.Placement(Vector(0, 0, -27), App.Rotation())
sketch23.addGeometry(Part.Circle(Vector(0, 55.5, 0), Vector(0, 0, 1), 1.5), False)
sketch23.addConstraint([
    Sketcher.Constraint("PointOnObject", 0, 3, -2),
    Sketcher.Constraint("Diameter", 0, Q("3 mm")),
    Sketcher.Constraint("DistanceY", -1, 1, 0, 3, Q("55.5 mm")),
])
pocket18 = body.newObject("PartDesign::Pocket", "Pocket017")
pocket18.Profile = sketch23
pocket18.Type = "ThroughAll"
pocket18.Midplane = True

# Sketch on XZ plane
sketch24 = body.newObject("Sketcher::SketchObject", "Sketch023")
sketch24.AttachmentSupport = (doc.getObject("XZ_Plane"), [""])
sketch24.MapMode = "FlatFace"
sketch24.AttachmentOffset = App.Placement(Vector(0, 0, -27), App.Rotation())
sketch24.addGeometry(Part.Circle(Vector(0, 55.5, 0), Vector(0, 0, 1), 1.5), False)
sketch24.addConstraint([
    Sketcher.Constraint("PointOnObject", 0, 3, -2),
    Sketcher.Constraint("Diameter", 0, Q("3 mm")),
    Sketcher.Constraint("DistanceY", -1, 1, 0, 3, Q("55.5 mm")),
])
pocket19 = body.newObject("PartDesign::Pocket", "Pocket018")
pocket19.Profile = sketch24
pocket19.Type = "ThroughAll"
pocket19.Midplane = True
doc.recompute()

fillet5 = body.newObject("PartDesign::Fillet", "Fillet004")
fillet5.Base = (pocket19, edges_at(pocket19, [
    (-26, 26, -6.75),
    (-26, -26, -6.75),
    (26, -26, -6.75),
    (26, 26, -6.75),
]))
fillet5.Radius = 2
doc.recompute()

fillet6 = body.newObject("PartDesign::Fillet", "Fillet005")
fillet6.Base = (fillet5, edges_at(fillet5, [
    (50, -50, -11.25),
    (50, 50, -11.25),
    (-50, 50, -11.25),
    (-50, -50, -11.25),
]))
fillet6.Radius = 2

doc.recompute()
